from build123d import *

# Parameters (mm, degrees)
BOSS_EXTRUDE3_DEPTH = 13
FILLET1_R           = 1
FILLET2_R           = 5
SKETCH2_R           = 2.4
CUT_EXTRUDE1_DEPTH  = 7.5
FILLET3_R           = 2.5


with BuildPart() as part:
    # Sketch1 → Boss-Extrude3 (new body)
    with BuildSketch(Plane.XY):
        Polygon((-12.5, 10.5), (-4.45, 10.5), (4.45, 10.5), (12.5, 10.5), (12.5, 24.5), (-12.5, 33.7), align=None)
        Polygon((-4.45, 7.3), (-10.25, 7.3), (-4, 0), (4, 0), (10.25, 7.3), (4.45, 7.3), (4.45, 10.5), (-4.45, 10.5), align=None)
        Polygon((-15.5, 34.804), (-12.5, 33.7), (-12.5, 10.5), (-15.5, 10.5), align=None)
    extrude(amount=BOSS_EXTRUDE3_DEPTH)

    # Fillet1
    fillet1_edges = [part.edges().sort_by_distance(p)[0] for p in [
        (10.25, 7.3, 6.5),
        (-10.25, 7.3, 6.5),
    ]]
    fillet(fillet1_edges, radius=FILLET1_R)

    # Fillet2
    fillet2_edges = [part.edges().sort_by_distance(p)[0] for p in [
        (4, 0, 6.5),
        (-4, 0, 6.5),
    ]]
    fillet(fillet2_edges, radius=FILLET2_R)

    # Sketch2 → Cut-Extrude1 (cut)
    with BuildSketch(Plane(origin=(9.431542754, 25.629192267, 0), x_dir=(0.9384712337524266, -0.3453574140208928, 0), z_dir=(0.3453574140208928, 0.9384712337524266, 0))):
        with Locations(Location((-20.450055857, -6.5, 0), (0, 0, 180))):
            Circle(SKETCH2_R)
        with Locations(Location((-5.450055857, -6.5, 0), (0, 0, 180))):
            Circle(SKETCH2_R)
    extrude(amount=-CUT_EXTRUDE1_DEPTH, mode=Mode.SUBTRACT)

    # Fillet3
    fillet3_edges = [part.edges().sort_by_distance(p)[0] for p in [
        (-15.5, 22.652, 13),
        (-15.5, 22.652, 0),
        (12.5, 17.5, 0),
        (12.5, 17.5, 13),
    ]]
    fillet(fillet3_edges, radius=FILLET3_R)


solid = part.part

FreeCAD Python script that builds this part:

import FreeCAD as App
import Part
import Sketcher
from FreeCAD import Vector
Q = App.Units.Quantity


def edges_at(feature, points):
    """Names of the edges that pass closest to the given points."""
    edges = feature.Shape.Edges
    near = lambda p: min(range(len(edges)), key=lambda i: edges[i].distToShape(Part.Vertex(*p))[0])
    return sorted({f"Edge{near(p) + 1}" for p in points})


def add_polygon(sketch, points):
    """Adds a closed chain of lines whose ends are joined by coincident constraints."""
    first, n = sketch.GeometryCount, len(points)
    for a, b in zip(points, points[1:] + points[:1]):
        sketch.addGeometry(Part.LineSegment(App.Vector(*a, 0), App.Vector(*b, 0)), False)
    for i in range(n):
        sketch.addConstraint(Sketcher.Constraint("Coincident", first + i, 2, first + (i + 1) % n, 1))

doc = App.newDocument("Part")
body = doc.addObject("PartDesign::Body", "Body")

sketch1 = body.newObject("Sketcher::SketchObject", "Sketch")
sketch1.AttachmentSupport = (doc.getObject("XY_Plane"), [""])
sketch1.MapMode = "FlatFace"
add_polygon(sketch1, [(-4.45, 10.5), (-4.45, 7.3), (-10.25, 7.3), (-4, 0), (4, 0), (10.25, 7.3), (4.45, 7.3), (4.45, 10.5), (12.5, 10.5), (12.5, 24.5), (-15.5, 34.804), (-15.5, 10.5)])
sketch1.addConstraint([
    Sketcher.Constraint("Vertical", 0),
    Sketcher.Constraint("Horizontal", 1),
    Sketcher.Constraint("Horizontal", 3),
    Sketcher.Constraint("Horizontal", 5),
    Sketcher.Constraint("Vertical", 6),
    Sketcher.Constraint("Horizontal", 7),
    Sketcher.Constraint("Vertical", 8),
    Sketcher.Constraint("Vertical", 10),
    Sketcher.Constraint("Horizontal", 11),
    Sketcher.Constraint("Symmetric", 2, 2, 3, 2, -1, 1),
    Sketcher.Constraint("Symmetric", 1, 2, 4, 2, -2),
    Sketcher.Constraint("Symmetric", 6, 2, 11, 2, -2),
    Sketcher.Constraint("DistanceX", 3, 1, 3, 2, Q("8 mm")),
    Sketcher.Constraint("DistanceY", 8, 1, 8, 2, Q("14 mm")),
    Sketcher.Constraint("DistanceX", 1, 2, 1, 1, Q("5.8 mm")),
    Sketcher.Constraint("DistanceY", 0, 2, 0, 1, Q("3.2 mm")),
    Sketcher.Constraint("DistanceX", 9, 2, 8, 2, Q("28 mm")),
    Sketcher.Constraint("DistanceX", 7, 1, 7, 2, Q("8.05 mm")),
    Sketcher.Constraint("DistanceX", 11, 1, 11, 2, Q("11.05 mm")),
    Sketcher.Constraint("DistanceY", -1, 1, 0, 2, Q("7.3 mm")),
    Sketcher.Constraint("DistanceY", 10, 2, 10, 1, Q("24.304 mm")),
])
pad1 = body.newObject("PartDesign::Pad", "Pad")
pad1.Profile = sketch1
pad1.Length = 13
doc.recompute()

fillet = body.newObject("PartDesign::Fillet", "Fillet")
fillet.Base = (pad1, edges_at(pad1, [(10.25, 7.3, 6.5), (-10.25, 7.3, 6.5)]))
fillet.Radius = 1
doc.recompute()

fillet2 = body.newObject("PartDesign::Fillet", "Fillet001")
fillet2.Base = (fillet, edges_at(fillet, [(4, 0, 6.5), (-4, 0, 6.5)]))
fillet2.Radius = 5

sketch2 = body.newObject("Sketcher::SketchObject", "Sketch001")
sketch2.Placement = App.Placement(Vector(9.431543, 25.629192, 0), App.Rotation(Vector(0.938471234, -0.345357414, 0), Vector(0, 0, -1), Vector(0.345357414, 0.938471234, 0), "ZXY"))
sketch2.addGeometry([
    Part.Circle(Vector(-20.450056, -6.5, 0), Vector(0, 0, 1), 2.4),
    Part.Circle(Vector(-5.450056, -6.5, 0), Vector(0, 0, 1), 2.4),
], False)
sketch2.addConstraint([
    Sketcher.Constraint("Equal", 0, 1),
    Sketcher.Constraint("Horizontal", 0, 3, 1, 3),
    Sketcher.Constraint("Diameter", 0, Q("4.8 mm")),
    Sketcher.Constraint("DistanceX", 0, 3, 1, 3, Q("15 mm")),
    Sketcher.Constraint("DistanceY", 0, 3, -1, 1, Q("6.5 mm")),
    Sketcher.Constraint("DistanceX", 0, 3, -1, 1, Q("20.450056 mm")),
])
pocket1 = body.newObject("PartDesign::Pocket", "Pocket")
pocket1.Profile = sketch2
pocket1.Length = 7.5
doc.recompute()

fillet3 = body.newObject("PartDesign::Fillet", "Fillet002")
fillet3.Base = (pocket1, edges_at(pocket1, [
    (-15.5, 22.652, 13),
    (-15.5, 22.652, 0),
    (12.5, 17.5, 0),
    (12.5, 17.5, 13),
]))
fillet3.Radius = 2.5

doc.recompute()
